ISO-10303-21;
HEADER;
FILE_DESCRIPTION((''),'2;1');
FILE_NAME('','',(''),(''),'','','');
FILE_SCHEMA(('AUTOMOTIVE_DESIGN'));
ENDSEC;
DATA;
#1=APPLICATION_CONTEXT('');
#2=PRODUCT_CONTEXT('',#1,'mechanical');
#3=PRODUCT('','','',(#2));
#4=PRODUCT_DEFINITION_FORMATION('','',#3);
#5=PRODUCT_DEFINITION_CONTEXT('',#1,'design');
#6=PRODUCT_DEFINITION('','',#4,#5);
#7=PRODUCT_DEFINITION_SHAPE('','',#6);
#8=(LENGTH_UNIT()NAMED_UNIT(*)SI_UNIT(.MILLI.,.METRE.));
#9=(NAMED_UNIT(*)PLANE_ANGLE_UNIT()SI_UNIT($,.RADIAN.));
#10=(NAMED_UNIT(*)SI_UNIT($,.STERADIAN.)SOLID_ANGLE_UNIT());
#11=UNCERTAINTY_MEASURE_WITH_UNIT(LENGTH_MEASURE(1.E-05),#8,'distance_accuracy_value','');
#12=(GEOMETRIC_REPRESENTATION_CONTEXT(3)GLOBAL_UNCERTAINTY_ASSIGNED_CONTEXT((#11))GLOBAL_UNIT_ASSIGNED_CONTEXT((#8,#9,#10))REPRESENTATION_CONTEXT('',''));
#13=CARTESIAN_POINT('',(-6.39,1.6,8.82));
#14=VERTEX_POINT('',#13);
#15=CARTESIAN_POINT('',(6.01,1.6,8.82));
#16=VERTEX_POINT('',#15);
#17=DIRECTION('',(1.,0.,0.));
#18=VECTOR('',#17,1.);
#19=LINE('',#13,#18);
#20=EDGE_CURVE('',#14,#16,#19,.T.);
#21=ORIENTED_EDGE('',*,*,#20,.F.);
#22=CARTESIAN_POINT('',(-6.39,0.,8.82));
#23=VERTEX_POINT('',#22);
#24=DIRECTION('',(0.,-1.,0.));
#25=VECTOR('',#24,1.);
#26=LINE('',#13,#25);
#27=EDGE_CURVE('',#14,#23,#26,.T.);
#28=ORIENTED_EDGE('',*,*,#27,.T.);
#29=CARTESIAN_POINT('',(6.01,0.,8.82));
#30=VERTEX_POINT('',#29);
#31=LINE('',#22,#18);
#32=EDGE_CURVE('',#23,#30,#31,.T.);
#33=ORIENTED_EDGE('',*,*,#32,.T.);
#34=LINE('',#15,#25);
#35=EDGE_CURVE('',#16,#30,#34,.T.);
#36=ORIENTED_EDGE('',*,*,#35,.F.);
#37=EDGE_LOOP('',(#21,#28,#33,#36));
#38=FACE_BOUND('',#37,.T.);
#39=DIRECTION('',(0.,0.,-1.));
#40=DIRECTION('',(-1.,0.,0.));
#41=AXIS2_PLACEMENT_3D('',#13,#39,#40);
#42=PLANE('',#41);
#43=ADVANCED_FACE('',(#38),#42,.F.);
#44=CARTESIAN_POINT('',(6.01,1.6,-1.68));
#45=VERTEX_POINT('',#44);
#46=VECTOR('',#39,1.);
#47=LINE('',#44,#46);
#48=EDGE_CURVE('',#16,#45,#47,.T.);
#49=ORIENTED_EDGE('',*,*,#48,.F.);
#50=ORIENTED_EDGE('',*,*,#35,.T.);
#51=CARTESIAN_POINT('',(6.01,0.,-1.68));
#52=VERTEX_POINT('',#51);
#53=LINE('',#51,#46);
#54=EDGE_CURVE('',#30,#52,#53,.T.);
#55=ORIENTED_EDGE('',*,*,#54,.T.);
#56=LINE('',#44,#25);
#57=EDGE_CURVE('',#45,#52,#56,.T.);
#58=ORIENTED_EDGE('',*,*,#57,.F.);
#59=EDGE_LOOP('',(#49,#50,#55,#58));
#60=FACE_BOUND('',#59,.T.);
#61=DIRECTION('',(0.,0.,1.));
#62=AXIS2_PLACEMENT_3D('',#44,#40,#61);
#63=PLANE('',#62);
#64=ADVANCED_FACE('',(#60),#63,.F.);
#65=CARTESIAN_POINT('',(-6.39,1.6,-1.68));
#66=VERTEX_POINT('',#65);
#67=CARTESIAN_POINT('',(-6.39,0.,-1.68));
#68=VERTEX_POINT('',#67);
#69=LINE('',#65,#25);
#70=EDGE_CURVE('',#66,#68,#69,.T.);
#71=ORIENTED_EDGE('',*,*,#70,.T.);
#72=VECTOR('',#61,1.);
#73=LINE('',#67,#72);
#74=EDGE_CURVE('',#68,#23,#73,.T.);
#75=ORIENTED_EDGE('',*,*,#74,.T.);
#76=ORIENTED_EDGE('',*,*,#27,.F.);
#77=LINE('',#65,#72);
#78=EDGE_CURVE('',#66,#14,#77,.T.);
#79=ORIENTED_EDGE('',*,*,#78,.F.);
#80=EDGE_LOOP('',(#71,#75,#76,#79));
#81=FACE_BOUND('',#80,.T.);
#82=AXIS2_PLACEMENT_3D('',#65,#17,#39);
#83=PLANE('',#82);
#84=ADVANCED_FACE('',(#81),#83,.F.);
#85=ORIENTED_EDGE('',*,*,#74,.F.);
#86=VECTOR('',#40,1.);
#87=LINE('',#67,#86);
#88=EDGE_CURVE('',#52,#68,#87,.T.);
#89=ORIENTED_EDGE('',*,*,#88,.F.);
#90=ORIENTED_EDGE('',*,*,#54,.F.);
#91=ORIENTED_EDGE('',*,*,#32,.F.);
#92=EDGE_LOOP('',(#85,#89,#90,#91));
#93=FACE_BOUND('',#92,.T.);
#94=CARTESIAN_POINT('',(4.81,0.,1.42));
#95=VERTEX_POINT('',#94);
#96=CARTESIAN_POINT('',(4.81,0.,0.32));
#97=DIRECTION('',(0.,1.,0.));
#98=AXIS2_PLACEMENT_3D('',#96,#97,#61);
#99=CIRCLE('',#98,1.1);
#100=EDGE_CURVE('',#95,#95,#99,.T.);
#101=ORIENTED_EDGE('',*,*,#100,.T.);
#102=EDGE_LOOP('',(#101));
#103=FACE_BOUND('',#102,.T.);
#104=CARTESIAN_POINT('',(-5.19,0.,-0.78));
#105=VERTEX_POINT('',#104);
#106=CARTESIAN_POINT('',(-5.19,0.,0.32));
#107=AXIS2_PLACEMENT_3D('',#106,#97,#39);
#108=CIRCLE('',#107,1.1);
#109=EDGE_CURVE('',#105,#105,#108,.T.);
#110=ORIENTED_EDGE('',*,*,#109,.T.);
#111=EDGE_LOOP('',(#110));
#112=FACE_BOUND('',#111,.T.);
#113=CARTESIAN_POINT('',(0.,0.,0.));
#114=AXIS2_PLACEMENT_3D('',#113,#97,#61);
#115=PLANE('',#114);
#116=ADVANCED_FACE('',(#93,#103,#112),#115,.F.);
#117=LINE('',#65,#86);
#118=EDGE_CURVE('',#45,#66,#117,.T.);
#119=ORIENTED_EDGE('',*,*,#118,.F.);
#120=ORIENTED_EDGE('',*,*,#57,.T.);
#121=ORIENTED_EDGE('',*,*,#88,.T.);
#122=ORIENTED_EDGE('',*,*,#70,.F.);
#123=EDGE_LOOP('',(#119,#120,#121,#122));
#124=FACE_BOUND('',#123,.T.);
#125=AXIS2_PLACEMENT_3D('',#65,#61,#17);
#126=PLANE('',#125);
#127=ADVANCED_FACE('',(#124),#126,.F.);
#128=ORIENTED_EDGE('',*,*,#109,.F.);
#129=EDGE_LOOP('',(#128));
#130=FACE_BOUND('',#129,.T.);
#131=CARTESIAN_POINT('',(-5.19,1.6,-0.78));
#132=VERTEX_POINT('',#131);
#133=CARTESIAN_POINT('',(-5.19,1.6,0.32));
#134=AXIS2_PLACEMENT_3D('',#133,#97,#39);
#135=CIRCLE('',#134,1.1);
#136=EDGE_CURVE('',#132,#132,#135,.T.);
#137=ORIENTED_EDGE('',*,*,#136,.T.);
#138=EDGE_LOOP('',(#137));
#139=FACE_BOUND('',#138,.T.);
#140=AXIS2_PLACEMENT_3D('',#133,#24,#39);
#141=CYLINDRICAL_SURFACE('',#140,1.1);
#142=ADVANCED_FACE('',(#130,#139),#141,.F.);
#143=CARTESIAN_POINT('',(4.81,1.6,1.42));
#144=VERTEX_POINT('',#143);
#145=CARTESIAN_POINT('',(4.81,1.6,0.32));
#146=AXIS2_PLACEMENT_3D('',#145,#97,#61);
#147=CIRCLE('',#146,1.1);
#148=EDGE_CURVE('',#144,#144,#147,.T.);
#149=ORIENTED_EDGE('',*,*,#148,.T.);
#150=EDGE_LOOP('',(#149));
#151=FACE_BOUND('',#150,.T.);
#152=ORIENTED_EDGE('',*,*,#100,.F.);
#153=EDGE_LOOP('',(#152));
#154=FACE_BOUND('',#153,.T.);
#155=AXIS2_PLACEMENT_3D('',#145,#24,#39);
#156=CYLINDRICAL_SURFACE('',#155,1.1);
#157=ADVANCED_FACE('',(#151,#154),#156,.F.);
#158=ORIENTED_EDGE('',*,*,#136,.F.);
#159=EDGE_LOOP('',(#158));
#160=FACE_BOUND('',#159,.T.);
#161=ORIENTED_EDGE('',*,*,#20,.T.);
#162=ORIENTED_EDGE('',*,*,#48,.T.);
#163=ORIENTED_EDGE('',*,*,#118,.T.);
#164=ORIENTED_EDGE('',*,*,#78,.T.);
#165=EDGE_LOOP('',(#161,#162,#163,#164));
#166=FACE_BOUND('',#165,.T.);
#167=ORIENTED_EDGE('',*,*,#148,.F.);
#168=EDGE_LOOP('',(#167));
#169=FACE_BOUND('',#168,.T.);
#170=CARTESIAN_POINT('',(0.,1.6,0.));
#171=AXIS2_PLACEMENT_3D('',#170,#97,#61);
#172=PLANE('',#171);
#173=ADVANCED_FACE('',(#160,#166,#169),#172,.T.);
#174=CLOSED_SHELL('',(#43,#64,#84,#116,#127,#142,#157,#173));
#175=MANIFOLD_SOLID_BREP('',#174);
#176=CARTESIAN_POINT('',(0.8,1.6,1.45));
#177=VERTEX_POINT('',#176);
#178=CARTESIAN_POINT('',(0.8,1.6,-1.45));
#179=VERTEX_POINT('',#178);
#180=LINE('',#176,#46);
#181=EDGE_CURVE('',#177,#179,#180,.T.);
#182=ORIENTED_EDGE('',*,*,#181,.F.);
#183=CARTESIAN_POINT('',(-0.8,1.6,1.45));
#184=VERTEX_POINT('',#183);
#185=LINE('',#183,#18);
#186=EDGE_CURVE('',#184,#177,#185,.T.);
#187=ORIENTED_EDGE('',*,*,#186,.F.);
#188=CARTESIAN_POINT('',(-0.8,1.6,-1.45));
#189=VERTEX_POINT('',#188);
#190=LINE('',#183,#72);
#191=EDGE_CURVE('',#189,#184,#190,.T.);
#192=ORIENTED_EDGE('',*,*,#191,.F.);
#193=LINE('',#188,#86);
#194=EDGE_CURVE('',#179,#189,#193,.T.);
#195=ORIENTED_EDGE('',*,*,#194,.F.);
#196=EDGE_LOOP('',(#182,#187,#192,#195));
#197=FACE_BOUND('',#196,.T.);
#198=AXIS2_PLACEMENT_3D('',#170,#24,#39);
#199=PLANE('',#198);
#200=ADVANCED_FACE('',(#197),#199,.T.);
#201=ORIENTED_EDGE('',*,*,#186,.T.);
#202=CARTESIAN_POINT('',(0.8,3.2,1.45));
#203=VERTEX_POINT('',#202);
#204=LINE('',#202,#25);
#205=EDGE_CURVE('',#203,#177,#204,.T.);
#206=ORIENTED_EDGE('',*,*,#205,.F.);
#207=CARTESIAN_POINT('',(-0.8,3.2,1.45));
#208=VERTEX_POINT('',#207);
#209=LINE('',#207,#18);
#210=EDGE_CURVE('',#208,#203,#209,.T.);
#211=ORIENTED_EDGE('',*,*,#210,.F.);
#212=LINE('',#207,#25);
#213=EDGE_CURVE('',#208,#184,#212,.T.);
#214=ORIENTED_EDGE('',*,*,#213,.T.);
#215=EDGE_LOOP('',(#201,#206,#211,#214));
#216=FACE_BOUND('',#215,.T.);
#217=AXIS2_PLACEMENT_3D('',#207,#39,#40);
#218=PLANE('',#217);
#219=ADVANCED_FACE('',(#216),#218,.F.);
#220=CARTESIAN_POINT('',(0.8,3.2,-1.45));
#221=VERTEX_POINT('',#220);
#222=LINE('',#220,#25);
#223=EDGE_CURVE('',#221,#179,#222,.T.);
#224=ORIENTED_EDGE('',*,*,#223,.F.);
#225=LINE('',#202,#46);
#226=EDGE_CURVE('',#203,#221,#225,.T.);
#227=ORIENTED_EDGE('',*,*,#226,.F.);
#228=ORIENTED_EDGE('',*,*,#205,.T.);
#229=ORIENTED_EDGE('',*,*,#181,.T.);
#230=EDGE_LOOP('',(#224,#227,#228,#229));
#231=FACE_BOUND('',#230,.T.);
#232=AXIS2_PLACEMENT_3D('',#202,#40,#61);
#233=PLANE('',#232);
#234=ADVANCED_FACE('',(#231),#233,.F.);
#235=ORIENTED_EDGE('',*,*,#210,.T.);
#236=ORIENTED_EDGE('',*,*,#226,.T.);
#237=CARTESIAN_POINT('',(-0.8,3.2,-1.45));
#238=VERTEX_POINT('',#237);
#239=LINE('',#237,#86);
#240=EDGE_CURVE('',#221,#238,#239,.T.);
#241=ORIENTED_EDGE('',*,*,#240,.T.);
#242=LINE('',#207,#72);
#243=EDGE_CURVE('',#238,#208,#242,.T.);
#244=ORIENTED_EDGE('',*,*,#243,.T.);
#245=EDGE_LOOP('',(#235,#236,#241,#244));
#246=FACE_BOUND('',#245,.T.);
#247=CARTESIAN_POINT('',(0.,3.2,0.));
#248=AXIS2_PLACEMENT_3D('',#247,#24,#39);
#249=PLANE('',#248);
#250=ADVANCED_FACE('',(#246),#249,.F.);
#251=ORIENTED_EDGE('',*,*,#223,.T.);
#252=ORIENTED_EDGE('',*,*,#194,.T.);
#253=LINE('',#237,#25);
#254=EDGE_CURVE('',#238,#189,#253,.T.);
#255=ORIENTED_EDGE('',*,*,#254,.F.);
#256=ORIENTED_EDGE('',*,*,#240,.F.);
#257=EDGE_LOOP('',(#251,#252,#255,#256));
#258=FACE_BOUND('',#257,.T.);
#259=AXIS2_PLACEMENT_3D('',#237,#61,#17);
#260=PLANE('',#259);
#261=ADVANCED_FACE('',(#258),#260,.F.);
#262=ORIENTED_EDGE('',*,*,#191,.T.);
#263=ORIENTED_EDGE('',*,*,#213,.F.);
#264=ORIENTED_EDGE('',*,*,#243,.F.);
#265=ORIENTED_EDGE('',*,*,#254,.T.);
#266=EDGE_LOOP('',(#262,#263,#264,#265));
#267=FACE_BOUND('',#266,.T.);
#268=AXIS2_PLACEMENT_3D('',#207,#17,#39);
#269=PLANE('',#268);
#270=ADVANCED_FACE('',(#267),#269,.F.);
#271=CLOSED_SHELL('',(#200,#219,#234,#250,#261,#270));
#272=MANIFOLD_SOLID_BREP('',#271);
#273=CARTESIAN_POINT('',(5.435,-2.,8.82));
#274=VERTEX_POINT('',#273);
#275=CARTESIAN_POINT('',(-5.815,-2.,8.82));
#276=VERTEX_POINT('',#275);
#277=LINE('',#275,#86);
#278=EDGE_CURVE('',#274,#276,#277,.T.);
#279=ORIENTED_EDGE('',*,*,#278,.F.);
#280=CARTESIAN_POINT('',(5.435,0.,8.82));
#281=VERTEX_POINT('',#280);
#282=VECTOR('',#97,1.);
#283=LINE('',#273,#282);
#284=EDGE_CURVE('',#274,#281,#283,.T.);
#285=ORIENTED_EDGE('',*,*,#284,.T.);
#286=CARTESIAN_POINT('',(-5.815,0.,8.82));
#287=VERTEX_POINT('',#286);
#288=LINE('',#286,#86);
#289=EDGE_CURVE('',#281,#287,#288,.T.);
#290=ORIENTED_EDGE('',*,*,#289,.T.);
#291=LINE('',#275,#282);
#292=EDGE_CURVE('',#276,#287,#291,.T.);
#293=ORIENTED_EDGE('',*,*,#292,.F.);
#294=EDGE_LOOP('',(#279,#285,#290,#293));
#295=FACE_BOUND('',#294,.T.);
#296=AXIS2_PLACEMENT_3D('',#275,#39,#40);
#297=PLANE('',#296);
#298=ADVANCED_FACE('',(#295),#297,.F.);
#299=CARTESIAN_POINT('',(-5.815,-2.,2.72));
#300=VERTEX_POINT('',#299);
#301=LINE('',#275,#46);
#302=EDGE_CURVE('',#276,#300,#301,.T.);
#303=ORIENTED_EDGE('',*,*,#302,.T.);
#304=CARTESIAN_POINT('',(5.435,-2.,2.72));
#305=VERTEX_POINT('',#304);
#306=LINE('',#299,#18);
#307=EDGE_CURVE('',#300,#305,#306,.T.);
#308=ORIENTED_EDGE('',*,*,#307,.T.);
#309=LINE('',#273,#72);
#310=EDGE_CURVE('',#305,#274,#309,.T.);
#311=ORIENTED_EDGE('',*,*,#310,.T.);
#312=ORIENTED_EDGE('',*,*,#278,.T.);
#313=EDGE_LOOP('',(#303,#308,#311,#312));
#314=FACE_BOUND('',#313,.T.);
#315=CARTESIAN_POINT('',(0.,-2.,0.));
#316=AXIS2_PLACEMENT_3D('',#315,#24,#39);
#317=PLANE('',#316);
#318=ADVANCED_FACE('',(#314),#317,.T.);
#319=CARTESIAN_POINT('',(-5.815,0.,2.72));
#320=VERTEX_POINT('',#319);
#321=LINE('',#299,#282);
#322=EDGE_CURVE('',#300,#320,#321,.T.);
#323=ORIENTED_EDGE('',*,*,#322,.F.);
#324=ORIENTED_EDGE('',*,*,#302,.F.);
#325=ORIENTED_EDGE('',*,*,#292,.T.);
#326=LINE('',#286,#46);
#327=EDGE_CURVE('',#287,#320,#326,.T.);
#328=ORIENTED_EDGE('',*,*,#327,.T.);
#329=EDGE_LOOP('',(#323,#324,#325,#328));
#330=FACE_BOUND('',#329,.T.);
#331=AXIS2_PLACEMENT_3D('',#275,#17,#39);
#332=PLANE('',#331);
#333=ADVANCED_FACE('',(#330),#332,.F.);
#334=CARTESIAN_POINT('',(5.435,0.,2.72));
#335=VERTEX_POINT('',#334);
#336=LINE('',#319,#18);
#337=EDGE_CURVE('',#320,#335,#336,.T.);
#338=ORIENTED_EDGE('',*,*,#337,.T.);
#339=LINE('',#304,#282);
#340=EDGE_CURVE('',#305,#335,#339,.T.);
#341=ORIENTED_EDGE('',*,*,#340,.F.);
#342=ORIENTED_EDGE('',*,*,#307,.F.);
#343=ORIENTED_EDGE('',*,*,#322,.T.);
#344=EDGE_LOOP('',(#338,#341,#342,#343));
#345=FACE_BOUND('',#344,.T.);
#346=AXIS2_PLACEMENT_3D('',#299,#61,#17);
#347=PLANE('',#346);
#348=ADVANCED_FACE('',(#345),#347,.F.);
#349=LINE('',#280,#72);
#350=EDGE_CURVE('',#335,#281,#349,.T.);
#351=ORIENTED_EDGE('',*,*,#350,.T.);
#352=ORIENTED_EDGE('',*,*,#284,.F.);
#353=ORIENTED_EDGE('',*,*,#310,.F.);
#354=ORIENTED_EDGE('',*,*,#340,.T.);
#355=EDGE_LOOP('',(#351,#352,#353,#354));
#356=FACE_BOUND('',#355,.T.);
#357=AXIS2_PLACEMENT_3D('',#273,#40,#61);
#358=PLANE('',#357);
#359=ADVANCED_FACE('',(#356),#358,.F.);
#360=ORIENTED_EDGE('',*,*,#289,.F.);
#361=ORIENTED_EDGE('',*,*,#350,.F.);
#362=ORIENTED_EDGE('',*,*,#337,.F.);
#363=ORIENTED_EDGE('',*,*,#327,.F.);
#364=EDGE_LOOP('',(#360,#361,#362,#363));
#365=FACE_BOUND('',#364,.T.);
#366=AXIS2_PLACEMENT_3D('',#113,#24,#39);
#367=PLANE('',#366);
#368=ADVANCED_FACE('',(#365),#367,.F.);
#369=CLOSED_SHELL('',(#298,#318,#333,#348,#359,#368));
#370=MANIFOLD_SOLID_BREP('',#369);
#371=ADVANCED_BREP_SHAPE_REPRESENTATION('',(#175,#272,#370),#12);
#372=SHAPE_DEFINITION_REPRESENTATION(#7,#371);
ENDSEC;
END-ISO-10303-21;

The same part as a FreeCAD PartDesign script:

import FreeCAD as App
import Part
import Sketcher

V = App.Vector
Q = App.Units.Quantity


def add_polygon(sketch, points):
    """Adds a closed chain of lines whose ends are joined by coincident constraints."""
    first, n = sketch.GeometryCount, len(points)
    for a, b in zip(points, points[1:] + points[:1]):
        sketch.addGeometry(Part.LineSegment(App.Vector(*a, 0), App.Vector(*b, 0)), False)
    for i in range(n):
        sketch.addConstraint(Sketcher.Constraint("Coincident", first + i, 2, first + (i + 1) % n, 1))

doc = App.newDocument("Part")
params = doc.addObject("Spreadsheet::Sheet", "Params")
for row, (alias, value) in enumerate([
    ("sketch1_width", "12.4 mm"),
    ("sketch1_height", "10.5 mm"),
    ("pad1_length", "1.6 mm"),
    ("sketch2_diameter", "2.2 mm"),
    ("sketch3_width", "1.6 mm"),
    ("sketch3_height", "2.9 mm"),
    ("pad2_length", "1.6 mm"),
    ("sketch4_height", "6.1 mm"),
    ("sketch4_width", "11.25 mm"),
    ("pad3_length", "2 mm"),
], start=1):
    params.set(f"A{row}", alias)
    params.set(f"B{row}", "=" + value)
    params.setAlias(f"B{row}", alias)

body = doc.addObject("PartDesign::Body", "Body")

# Sketch on XZ plane
sketch1 = body.newObject("Sketcher::SketchObject", "Sketch")
sketch1.AttachmentSupport = (doc.getObject("XZ_Plane"), [""])
sketch1.MapMode = "FlatFace"
add_polygon(sketch1, [(-6, -2), (-6, 9), (6, 9), (6, -2)])  # lines 0-3
sketch1.addConstraint([
    Sketcher.Constraint("Vertical", 0),
    Sketcher.Constraint("Horizontal", 1),
    Sketcher.Constraint("Vertical", 2),
    Sketcher.Constraint("Horizontal", 3),
    Sketcher.Constraint("DistanceX", 1, 1, 1, 2, Q("12.4 mm")),
    Sketcher.Constraint("DistanceY", 0, 1, 0, 2, Q("10.5 mm")),
    Sketcher.Constraint("DistanceX", 0, 2, -1, 1, Q("6.39 mm")),
    Sketcher.Constraint("DistanceY", -1, 1, 0, 2, Q("8.82 mm")),
])
sketch1.setExpression("Constraints[8]", "Params.sketch1_width")
sketch1.setExpression("Constraints[9]", "Params.sketch1_height")
pad1 = body.newObject("PartDesign::Pad", "Pad")
pad1.Profile = sketch1
pad1.setExpression("Length", "Params.pad1_length")
pad1.Reversed = True

# Sketch on XZ plane
sketch2 = body.newObject("Sketcher::SketchObject", "Sketch001")
sketch2.AttachmentSupport = (doc.getObject("XZ_Plane"), [""])
sketch2.MapMode = "FlatFace"
sketch2.addGeometry([
    Part.Circle(V(4.8, 0.3, 0), V(0, 0, 1), 1.1),
    Part.Circle(V(-5.2, 0.3, 0), V(0, 0, 1), 1.1),
], False)
sketch2.addConstraint([
    Sketcher.Constraint("Equal", 0, 1),
    Sketcher.Constraint("Horizontal", 0, 3, 1, 3),
    Sketcher.Constraint("Diameter", 0, Q("2.2 mm")),
    Sketcher.Constraint("DistanceX", 1, 3, 0, 3, Q("10 mm")),
    Sketcher.Constraint("DistanceX", -1, 1, 0, 3, Q("4.81 mm")),
    Sketcher.Constraint("DistanceY", -1, 1, 0, 3, Q("0.32 mm")),
])
sketch2.setExpression("Constraints[2]", "Params.sketch2_diameter")
pocket1 = body.newObject("PartDesign::Pocket", "Pocket")
pocket1.Profile = sketch2
pocket1.Type = "ThroughAll"
body2 = doc.addObject("PartDesign::Body", "Body001")

# Sketch on XZ plane
sketch3 = body2.newObject("Sketcher::SketchObject", "Sketch002")
sketch3.AttachmentSupport = (doc.getObject("XZ_Plane001"), [""])
sketch3.MapMode = "FlatFace"
sketch3.AttachmentOffset = App.Placement(V(0, 0, -1.6), App.Rotation())
add_polygon(sketch3, [(-0.8, -1.4), (-0.8, 1.4), (0.8, 1.4), (0.8, -1.4)])  # lines 0-3
sketch3.addConstraint([
    Sketcher.Constraint("Vertical", 0),
    Sketcher.Constraint("Horizontal", 1),
    Sketcher.Constraint("Vertical", 2),
    Sketcher.Constraint("Horizontal", 3),
    Sketcher.Constraint("Symmetric", 0, 2, 2, 2, -1, 1),
    Sketcher.Constraint("DistanceX", 1, 1, 1, 2, Q("1.6 mm")),
    Sketcher.Constraint("DistanceY", 0, 1, 0, 2, Q("2.9 mm")),
])
sketch3.setExpression("Constraints[9]", "Params.sketch3_width")
sketch3.setExpression("Constraints[10]", "Params.sketch3_height")
pad2 = body2.newObject("PartDesign::Pad", "Pad001")
pad2.Profile = sketch3
pad2.setExpression("Length", "Params.pad2_length")
pad2.Reversed = True
body3 = doc.addObject("PartDesign::Body", "Body002")

# Sketch on XZ plane
sketch4 = body3.newObject("Sketcher::SketchObject", "Sketch003")
sketch4.AttachmentSupport = (doc.getObject("XZ_Plane002"), [""])
sketch4.MapMode = "FlatFace"
add_polygon(sketch4, [(-6, 9), (-6, 3), (5, 3), (5, 9)])  # lines 0-3
sketch4.addConstraint([
    Sketcher.Constraint("Vertical", 0),
    Sketcher.Constraint("Horizontal", 1),
    Sketcher.Constraint("Vertical", 2),
    Sketcher.Constraint("Horizontal", 3),
    Sketcher.Constraint("DistanceY", 0, 2, 0, 1, Q("6.1 mm")),
    Sketcher.Constraint("DistanceX", 1, 1, 1, 2, Q("11.25 mm")),
    Sketcher.Constraint("DistanceY", -1, 1, 0, 2, Q("2.72 mm")),
    Sketcher.Constraint("DistanceX", 0, 2, -1, 1, Q("5.815 mm")),
])
sketch4.setExpression("Constraints[8]", "Params.sketch4_height")
sketch4.setExpression("Constraints[9]", "Params.sketch4_width")
pad3 = body3.newObject("PartDesign::Pad", "Pad002")
pad3.Profile = sketch4
pad3.setExpression("Length", "Params.pad3_length")

doc.recompute()
